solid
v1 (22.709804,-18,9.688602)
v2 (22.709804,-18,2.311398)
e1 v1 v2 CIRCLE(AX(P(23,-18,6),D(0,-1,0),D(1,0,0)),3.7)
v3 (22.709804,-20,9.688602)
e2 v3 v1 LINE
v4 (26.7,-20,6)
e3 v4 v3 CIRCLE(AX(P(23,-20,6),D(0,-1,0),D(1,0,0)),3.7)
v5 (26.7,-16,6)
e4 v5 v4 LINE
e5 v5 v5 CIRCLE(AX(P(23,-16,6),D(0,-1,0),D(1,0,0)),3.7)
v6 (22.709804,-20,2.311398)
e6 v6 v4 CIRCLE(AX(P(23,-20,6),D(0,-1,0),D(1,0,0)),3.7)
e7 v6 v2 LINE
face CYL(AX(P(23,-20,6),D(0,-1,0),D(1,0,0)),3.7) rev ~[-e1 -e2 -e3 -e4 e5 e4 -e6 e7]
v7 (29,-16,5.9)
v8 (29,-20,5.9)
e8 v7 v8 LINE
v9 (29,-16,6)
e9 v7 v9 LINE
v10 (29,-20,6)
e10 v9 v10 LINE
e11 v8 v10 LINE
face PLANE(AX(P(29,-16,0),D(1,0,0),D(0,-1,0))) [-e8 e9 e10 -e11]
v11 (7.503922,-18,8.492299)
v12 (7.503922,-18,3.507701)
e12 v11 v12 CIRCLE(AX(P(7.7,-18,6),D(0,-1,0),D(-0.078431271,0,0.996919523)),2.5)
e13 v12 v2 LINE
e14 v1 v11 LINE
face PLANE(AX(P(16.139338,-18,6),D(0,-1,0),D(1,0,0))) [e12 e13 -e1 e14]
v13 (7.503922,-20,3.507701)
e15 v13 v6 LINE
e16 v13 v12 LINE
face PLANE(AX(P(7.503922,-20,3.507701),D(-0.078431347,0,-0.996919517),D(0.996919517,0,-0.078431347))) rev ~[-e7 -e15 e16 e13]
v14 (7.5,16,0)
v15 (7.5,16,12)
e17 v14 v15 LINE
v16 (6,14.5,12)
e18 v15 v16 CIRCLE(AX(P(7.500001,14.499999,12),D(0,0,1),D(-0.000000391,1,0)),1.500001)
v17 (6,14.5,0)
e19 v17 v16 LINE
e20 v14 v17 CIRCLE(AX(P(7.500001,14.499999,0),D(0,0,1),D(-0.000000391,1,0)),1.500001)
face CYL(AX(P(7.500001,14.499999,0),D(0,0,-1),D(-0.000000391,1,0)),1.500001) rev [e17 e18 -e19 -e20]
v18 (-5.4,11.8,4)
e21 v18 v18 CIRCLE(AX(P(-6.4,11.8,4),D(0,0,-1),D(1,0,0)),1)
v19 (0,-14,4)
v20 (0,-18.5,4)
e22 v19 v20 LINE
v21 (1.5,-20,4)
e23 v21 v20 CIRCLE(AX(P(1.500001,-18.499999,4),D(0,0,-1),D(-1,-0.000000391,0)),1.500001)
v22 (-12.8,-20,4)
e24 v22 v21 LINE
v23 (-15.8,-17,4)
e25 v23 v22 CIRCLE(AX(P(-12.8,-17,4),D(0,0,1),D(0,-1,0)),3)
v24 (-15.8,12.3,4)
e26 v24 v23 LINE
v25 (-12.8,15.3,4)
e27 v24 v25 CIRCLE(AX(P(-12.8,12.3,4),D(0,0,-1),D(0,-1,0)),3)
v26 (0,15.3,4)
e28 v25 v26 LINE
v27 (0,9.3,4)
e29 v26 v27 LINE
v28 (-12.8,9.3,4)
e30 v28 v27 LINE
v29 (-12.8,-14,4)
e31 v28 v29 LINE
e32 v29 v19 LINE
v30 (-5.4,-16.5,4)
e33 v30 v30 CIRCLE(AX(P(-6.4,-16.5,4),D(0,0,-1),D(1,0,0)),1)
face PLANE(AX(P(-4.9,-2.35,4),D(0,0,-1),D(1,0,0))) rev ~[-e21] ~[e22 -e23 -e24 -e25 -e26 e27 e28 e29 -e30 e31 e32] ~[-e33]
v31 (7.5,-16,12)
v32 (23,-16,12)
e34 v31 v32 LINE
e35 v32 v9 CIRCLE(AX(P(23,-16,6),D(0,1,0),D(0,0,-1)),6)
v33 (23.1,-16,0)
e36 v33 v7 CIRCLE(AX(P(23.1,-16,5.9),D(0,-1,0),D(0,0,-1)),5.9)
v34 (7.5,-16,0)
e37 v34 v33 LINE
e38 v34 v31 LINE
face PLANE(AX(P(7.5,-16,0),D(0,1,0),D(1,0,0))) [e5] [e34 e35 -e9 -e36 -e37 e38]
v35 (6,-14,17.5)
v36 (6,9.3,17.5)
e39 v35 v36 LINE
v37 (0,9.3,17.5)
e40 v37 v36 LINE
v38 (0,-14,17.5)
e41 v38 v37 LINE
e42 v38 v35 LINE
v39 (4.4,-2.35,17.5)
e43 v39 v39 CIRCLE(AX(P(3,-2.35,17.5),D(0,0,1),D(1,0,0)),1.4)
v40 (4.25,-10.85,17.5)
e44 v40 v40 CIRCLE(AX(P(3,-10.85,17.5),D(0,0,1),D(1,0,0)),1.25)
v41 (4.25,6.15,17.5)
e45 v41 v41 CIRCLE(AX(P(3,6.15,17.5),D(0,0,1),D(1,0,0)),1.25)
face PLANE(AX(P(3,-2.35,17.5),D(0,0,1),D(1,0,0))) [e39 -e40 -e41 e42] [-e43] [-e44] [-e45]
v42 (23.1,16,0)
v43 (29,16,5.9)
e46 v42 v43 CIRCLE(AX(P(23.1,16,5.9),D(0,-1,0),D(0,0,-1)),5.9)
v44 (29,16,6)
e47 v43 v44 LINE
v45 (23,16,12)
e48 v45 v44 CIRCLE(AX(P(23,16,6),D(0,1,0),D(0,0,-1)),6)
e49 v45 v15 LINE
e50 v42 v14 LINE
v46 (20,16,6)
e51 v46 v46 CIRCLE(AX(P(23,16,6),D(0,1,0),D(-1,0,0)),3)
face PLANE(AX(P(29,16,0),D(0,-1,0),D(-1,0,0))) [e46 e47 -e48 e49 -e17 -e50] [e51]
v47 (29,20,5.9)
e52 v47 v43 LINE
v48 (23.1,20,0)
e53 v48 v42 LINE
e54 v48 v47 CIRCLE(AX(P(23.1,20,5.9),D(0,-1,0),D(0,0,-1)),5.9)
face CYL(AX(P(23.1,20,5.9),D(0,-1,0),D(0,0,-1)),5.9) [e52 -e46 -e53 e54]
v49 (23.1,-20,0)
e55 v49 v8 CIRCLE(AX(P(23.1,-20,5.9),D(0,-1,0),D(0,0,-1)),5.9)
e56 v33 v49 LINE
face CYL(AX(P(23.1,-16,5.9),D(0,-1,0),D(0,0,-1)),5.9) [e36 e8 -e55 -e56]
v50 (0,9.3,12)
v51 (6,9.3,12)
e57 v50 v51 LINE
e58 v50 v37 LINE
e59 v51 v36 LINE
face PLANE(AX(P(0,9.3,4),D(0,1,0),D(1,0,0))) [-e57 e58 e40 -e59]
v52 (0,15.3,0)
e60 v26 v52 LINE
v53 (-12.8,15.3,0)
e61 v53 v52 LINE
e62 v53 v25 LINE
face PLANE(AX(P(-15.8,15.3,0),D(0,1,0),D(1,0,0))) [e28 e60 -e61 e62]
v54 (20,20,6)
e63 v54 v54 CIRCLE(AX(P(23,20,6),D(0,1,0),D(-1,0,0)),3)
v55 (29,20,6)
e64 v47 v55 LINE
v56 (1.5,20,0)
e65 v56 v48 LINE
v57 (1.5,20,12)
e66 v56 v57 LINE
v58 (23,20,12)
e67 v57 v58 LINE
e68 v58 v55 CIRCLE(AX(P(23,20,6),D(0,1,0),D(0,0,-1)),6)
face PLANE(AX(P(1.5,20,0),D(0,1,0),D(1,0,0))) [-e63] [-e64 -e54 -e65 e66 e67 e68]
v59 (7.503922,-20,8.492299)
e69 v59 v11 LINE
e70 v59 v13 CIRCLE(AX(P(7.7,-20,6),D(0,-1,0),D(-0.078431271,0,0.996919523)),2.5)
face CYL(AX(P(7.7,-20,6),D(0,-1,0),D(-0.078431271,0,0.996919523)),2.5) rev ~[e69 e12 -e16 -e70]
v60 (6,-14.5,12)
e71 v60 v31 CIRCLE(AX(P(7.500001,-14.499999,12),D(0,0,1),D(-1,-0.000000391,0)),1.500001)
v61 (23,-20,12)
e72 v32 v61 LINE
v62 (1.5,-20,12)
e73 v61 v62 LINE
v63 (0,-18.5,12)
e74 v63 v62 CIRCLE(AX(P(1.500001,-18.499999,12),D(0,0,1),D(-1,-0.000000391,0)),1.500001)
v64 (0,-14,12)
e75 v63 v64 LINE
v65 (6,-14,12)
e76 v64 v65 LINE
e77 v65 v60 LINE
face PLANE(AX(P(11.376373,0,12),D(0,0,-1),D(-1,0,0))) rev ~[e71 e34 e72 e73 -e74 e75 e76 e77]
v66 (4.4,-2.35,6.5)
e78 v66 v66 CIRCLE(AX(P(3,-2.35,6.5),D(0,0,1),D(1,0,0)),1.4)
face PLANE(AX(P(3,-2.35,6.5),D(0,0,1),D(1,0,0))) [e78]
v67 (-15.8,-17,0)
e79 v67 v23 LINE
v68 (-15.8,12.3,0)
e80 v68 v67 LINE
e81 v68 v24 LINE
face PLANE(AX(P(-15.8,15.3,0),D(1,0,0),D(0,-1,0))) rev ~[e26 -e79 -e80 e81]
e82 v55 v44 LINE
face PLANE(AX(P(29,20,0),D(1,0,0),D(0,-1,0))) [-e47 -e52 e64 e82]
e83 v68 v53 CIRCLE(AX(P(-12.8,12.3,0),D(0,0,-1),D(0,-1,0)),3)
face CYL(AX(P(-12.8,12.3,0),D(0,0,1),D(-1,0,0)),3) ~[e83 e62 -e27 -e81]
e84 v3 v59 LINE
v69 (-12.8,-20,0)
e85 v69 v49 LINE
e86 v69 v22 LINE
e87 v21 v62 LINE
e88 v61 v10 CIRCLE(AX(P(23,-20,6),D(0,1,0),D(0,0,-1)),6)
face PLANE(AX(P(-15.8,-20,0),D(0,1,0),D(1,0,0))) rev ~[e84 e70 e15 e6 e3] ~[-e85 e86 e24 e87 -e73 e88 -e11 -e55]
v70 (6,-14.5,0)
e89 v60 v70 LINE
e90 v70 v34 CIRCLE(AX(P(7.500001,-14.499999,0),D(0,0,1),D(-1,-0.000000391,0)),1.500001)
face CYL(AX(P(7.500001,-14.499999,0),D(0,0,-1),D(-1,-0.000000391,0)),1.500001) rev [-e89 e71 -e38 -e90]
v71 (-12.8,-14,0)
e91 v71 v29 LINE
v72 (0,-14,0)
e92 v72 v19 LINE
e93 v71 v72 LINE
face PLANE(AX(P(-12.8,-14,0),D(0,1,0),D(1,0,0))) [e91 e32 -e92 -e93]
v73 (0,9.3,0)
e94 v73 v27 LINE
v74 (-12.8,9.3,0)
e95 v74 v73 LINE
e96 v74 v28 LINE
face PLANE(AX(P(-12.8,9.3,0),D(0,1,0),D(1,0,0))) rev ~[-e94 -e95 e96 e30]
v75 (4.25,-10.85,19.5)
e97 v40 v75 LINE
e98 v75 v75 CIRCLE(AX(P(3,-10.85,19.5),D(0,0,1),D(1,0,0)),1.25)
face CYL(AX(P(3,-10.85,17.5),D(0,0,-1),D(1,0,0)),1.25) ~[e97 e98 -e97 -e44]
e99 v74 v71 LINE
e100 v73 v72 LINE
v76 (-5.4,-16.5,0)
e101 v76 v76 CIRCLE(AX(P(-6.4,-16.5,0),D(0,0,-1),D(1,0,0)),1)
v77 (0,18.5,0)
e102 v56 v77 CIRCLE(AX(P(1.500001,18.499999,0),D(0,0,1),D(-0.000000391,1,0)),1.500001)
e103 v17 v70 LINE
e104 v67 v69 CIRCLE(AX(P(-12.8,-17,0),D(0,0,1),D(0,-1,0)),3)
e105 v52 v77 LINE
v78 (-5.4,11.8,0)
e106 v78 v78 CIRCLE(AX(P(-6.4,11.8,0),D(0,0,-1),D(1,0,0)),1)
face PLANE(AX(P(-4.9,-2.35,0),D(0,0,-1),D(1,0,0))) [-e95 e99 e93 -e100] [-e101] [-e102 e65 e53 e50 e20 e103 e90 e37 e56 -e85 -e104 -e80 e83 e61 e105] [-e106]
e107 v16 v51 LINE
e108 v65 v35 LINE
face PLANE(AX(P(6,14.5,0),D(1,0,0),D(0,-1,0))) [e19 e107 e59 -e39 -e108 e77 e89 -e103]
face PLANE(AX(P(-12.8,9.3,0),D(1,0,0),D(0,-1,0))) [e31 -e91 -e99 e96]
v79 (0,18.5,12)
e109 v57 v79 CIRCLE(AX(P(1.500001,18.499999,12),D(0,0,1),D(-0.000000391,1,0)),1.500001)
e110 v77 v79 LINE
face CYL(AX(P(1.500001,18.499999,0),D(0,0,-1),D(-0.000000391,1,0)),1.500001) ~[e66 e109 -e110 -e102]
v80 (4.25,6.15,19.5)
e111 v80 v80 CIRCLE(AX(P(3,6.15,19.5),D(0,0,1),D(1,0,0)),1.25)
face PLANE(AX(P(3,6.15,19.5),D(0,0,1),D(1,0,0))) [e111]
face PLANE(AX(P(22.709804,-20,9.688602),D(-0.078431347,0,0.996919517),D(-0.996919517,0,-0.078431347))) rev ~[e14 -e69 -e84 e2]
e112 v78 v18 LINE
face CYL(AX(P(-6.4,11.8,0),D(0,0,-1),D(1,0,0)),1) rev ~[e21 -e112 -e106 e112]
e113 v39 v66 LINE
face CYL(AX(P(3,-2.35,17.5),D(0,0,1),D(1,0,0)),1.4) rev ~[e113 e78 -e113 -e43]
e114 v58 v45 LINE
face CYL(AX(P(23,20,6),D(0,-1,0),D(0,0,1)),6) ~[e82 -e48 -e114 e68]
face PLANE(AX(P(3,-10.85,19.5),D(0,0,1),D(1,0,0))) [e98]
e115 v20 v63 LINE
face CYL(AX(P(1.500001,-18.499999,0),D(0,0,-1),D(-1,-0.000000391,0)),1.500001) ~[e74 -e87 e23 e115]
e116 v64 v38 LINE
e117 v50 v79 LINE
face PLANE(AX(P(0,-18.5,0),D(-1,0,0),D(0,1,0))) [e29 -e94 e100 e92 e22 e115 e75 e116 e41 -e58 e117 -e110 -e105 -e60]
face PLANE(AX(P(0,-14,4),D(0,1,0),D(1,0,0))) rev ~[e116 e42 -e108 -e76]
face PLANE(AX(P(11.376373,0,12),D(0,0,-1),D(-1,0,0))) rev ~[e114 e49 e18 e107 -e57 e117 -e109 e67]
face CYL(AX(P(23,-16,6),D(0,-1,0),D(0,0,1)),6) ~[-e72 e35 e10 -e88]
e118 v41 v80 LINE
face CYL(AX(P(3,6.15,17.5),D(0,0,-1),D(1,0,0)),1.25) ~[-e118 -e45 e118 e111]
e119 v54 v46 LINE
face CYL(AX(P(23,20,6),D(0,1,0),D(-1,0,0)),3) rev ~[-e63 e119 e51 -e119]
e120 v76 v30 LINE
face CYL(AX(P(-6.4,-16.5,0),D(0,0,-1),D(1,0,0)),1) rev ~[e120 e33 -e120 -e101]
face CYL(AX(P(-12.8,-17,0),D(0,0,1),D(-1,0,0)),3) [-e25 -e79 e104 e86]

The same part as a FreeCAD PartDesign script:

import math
import FreeCAD as App
import Part
import Sketcher
from FreeCAD import Vector
Q = App.Units.Quantity


def edges_at(feature, points):
    """Names of the edges that pass closest to the given points."""
    edges = feature.Shape.Edges
    near = lambda p: min(range(len(edges)), key=lambda i: edges[i].distToShape(Part.Vertex(*p))[0])
    return sorted({f"Edge{near(p) + 1}" for p in points})

doc = App.newDocument("Part")
body = doc.addObject("PartDesign::Body", "Body")

# Sketch on XY plane
sketch1 = body.newObject("Sketcher::SketchObject", "Sketch")
sketch1.AttachmentSupport = (doc.getObject("XY_Plane"), [""])
sketch1.MapMode = "FlatFace"
sketch1.addGeometry([
    Part.LineSegment(Vector(29, 20, 0), Vector(1.5, 20, 0)),  # 0
    Part.ArcOfCircle(Part.Circle(Vector(1.5, 18.5, 0), Vector(0, 0, 1), 1.5), math.radians(90), math.radians(180)),  # 1
    Part.LineSegment(Vector(0, 18.5, 0), Vector(0, -18.5, 0)),  # 2
    Part.ArcOfCircle(Part.Circle(Vector(1.5, -18.5, 0), Vector(0, 0, 1), 1.5), math.radians(-180), math.radians(-90)),  # 3
    Part.LineSegment(Vector(1.5, -20, 0), Vector(29, -20, 0)),  # 4
    Part.LineSegment(Vector(29, -20, 0), Vector(29, -16, 0)),  # 5
    Part.LineSegment(Vector(29, -16, 0), Vector(7.5, -16, 0)),  # 6
    Part.ArcOfCircle(Part.Circle(Vector(7.5, -14.5, 0), Vector(0, 0, 1), 1.5), math.radians(-180), math.radians(-90)),  # 7
    Part.LineSegment(Vector(6, -14.5, 0), Vector(6, 14.5, 0)),  # 8
    Part.ArcOfCircle(Part.Circle(Vector(7.5, 14.5, 0), Vector(0, 0, 1), 1.5), math.radians(90), math.radians(180)),  # 9
    Part.LineSegment(Vector(7.5, 16, 0), Vector(29, 16, 0)),  # 10
    Part.LineSegment(Vector(29, 16, 0), Vector(29, 20, 0)),  # 11
], False)
sketch1.addConstraint([
    Sketcher.Constraint("Tangent", 0, 2, 1, 1),
    Sketcher.Constraint("Tangent", 1, 2, 2, 1),
    Sketcher.Constraint("Tangent", 2, 2, 3, 1),
    Sketcher.Constraint("Tangent", 3, 2, 4, 1),
    Sketcher.Constraint("Coincident", 4, 2, 5, 1),
    Sketcher.Constraint("Coincident", 5, 2, 6, 1),
    Sketcher.Constraint("Tangent", 6, 2, 7, 2),
    Sketcher.Constraint("Tangent", 7, 1, 8, 1),
    Sketcher.Constraint("Tangent", 8, 2, 9, 2),
    Sketcher.Constraint("Tangent", 9, 1, 10, 1),
    Sketcher.Constraint("Coincident", 10, 2, 11, 1),
    Sketcher.Constraint("Coincident", 11, 2, 0, 1),
    Sketcher.Constraint("Horizontal", 0),
    Sketcher.Constraint("Vertical", 2),
    Sketcher.Constraint("Horizontal", 4),
    Sketcher.Constraint("Vertical", 5),
    Sketcher.Constraint("Horizontal", 6),
    Sketcher.Constraint("Vertical", 8),
    Sketcher.Constraint("Horizontal", 10),
    Sketcher.Constraint("Vertical", 11),
    Sketcher.Constraint("Equal", 1, 3),
    Sketcher.Constraint("Equal", 3, 7),
    Sketcher.Constraint("Equal", 7, 9),
    Sketcher.Constraint("Symmetric", 1, 2, 2, 2, -1, 1),
    Sketcher.Constraint("Symmetric", 5, 2, 10, 2, -1),
    Sketcher.Constraint("Radius", 1, Q("1.500001 mm")),
    Sketcher.Constraint("DistanceY", 2, 2, 2, 1, Q("37 mm")),
    Sketcher.Constraint("DistanceY", 5, 1, 5, 2, Q("4 mm")),
    Sketcher.Constraint("DistanceX", 0, 2, 0, 1, Q("27.5 mm")),
    Sketcher.Constraint("DistanceX", 6, 2, 6, 1, Q("21.5 mm")),
])
pad1 = body.newObject("PartDesign::Pad", "Pad")
pad1.Profile = sketch1
pad1.Length = 12

# Sketch on XZ plane
sketch2 = body.newObject("Sketcher::SketchObject", "Sketch001")
sketch2.AttachmentSupport = (doc.getObject("XZ_Plane"), [""])
sketch2.MapMode = "FlatFace"
sketch2.AttachmentOffset = App.Placement(Vector(0, 0, 20), App.Rotation())
sketch2.addGeometry(Part.Circle(Vector(23, 6, 0), Vector(0, 0, 1), 3.7), False)
sketch2.addConstraint([
    Sketcher.Constraint("Diameter", 0, Q("7.4 mm")),
    Sketcher.Constraint("DistanceX", -1, 1, 0, 3, Q("23 mm")),
    Sketcher.Constraint("DistanceY", -1, 1, 0, 3, Q("6 mm")),
])
pocket1 = body.newObject("PartDesign::Pocket", "Pocket")
pocket1.Profile = sketch2
pocket1.Length = 5

# Sketch on XZ plane
sketch3 = body.newObject("Sketcher::SketchObject", "Sketch002")
sketch3.AttachmentSupport = (doc.getObject("XZ_Plane"), [""])
sketch3.MapMode = "FlatFace"
sketch3.AttachmentOffset = App.Placement(Vector(0, 0, -20), App.Rotation())
sketch3.addGeometry(Part.Circle(Vector(23, 6, 0), Vector(0, 0, 1), 3), False)
sketch3.addConstraint([
    Sketcher.Constraint("Diameter", 0, Q("6 mm")),
    Sketcher.Constraint("DistanceX", -1, 1, 0, 3, Q("23 mm")),
    Sketcher.Constraint("DistanceY", -1, 1, 0, 3, Q("6 mm")),
])
pocket2 = body.newObject("PartDesign::Pocket", "Pocket001")
pocket2.Profile = sketch3
pocket2.Length = 5
pocket2.Reversed = True

# Sketch on XZ plane
sketch4 = body.newObject("Sketcher::SketchObject", "Sketch003")
sketch4.AttachmentSupport = (doc.getObject("XZ_Plane"), [""])
sketch4.MapMode = "FlatFace"
sketch4.AttachmentOffset = App.Placement(Vector(0, 0, 20), App.Rotation())
sketch4.addGeometry([
    Part.ArcOfCircle(Part.Circle(Vector(7.7, 6, 0), Vector(0, 0, 1), 2.5), math.radians(94), math.radians(266)),
    Part.LineSegment(Vector(7.5, 3.5, 0), Vector(22.7, 2.3, 0)),
    Part.ArcOfCircle(Part.Circle(Vector(23, 6, 0), Vector(0, 0, 1), 3.7), math.radians(-94), math.radians(94)),
    Part.LineSegment(Vector(22.7, 9.7, 0), Vector(7.5, 8.5, 0)),
], False)
sketch4.addConstraint([
    Sketcher.Constraint("Tangent", 0, 2, 1, 1),
    Sketcher.Constraint("Tangent", 1, 2, 2, 1),
    Sketcher.Constraint("Tangent", 2, 2, 3, 1),
    Sketcher.Constraint("Tangent", 3, 2, 0, 1),
    Sketcher.Constraint("Horizontal", 0, 3, 2, 3),
    Sketcher.Constraint("Radius", 0, Q("2.5 mm")),
    Sketcher.Constraint("Radius", 2, Q("3.7 mm")),
    Sketcher.Constraint("DistanceY", -1, 1, 0, 3, Q("6 mm")),
    Sketcher.Constraint("DistanceX", -1, 1, 2, 3, Q("23 mm")),
    Sketcher.Constraint("DistanceX", -1, 1, 0, 3, Q("7.7 mm")),
])
pocket3 = body.newObject("PartDesign::Pocket", "Pocket002")
pocket3.Profile = sketch4
pocket3.Length = 2

# Sketch on XY plane
sketch5 = body.newObject("Sketcher::SketchObject", "Sketch004")
sketch5.AttachmentSupport = (doc.getObject("XY_Plane"), [""])
sketch5.MapMode = "FlatFace"
sketch5.addGeometry([
    Part.LineSegment(Vector(-15.8, -20, 0), Vector(-15.8, 15.3, 0)),  # 0
    Part.LineSegment(Vector(-15.8, 15.3, 0), Vector(6, 15.3, 0)),  # 1
    Part.LineSegment(Vector(6, 15.3, 0), Vector(6, -20, 0)),  # 2
    Part.LineSegment(Vector(6, -20, 0), Vector(-15.8, -20, 0)),  # 3
    Part.Circle(Vector(-6.4, 11.8, 0), Vector(0, 0, 1), 1),  # 4
    Part.LineSegment(Vector(0, 9.3, 0), Vector(-12.8, 9.3, 0)),  # 5
    Part.LineSegment(Vector(-12.8, 9.3, 0), Vector(-12.8, -14, 0)),  # 6
    Part.LineSegment(Vector(-12.8, -14, 0), Vector(0, -14, 0)),  # 7
    Part.LineSegment(Vector(0, -14, 0), Vector(0, 9.3, 0)),  # 8
    Part.Circle(Vector(-6.4, -16.5, 0), Vector(0, 0, 1), 1),  # 9
], False)
sketch5.addConstraint([
    Sketcher.Constraint("Coincident", 0, 2, 1, 1),
    Sketcher.Constraint("Coincident", 1, 2, 2, 1),
    Sketcher.Constraint("Coincident", 2, 2, 3, 1),
    Sketcher.Constraint("Coincident", 3, 2, 0, 1),
    Sketcher.Constraint("Coincident", 5, 2, 6, 1),
    Sketcher.Constraint("Coincident", 6, 2, 7, 1),
    Sketcher.Constraint("Coincident", 7, 2, 8, 1),
    Sketcher.Constraint("Coincident", 8, 2, 5, 1),
    Sketcher.Constraint("Vertical", 0),
    Sketcher.Constraint("Horizontal", 1),
    Sketcher.Constraint("Vertical", 2),
    Sketcher.Constraint("Horizontal", 3),
    Sketcher.Constraint("Horizontal", 5),
    Sketcher.Constraint("Vertical", 6),
    Sketcher.Constraint("Horizontal", 7),
    Sketcher.Constraint("Vertical", 8),
    Sketcher.Constraint("Equal", 4, 9),
    Sketcher.Constraint("PointOnObject", 7, 2, -2),
    Sketcher.Constraint("Vertical", 4, 3, 9, 3),
    Sketcher.Constraint("Diameter", 4, Q("2 mm")),
    Sketcher.Constraint("DistanceX", 1, 1, 1, 2, Q("21.8 mm")),
    Sketcher.Constraint("DistanceX", 5, 2, 5, 1, Q("12.8 mm")),
    Sketcher.Constraint("DistanceY", 0, 1, 0, 2, Q("35.3 mm")),
    Sketcher.Constraint("DistanceY", 6, 2, 6, 1, Q("23.3 mm")),
    Sketcher.Constraint("DistanceX", -1, 1, 1, 2, Q("6 mm")),
    Sketcher.Constraint("DistanceY", 2, 2, -1, 1, Q("20 mm")),
    Sketcher.Constraint("DistanceY", 6, 2, -1, 1, Q("14 mm")),
    Sketcher.Constraint("DistanceX", 4, 3, -1, 1, Q("6.4 mm")),
    Sketcher.Constraint("DistanceY", -1, 1, 4, 3, Q("11.8 mm")),
    Sketcher.Constraint("DistanceY", 9, 3, -1, 1, Q("16.5 mm")),
])
pad2 = body.newObject("PartDesign::Pad", "Pad001")
pad2.Profile = sketch5
pad2.Length = 4
doc.recompute()

fillet = body.newObject("PartDesign::Fillet", "Fillet")
fillet.Base = (pad2, edges_at(pad2, [(-15.8, -20, 2)]))
fillet.Radius = 3
doc.recompute()

fillet2 = body.newObject("PartDesign::Fillet", "Fillet001")
fillet2.Base = (fillet, edges_at(fillet, [(-15.8, 15.3, 2)]))
fillet2.Radius = 3

# Sketch on XY plane
sketch6 = body.newObject("Sketcher::SketchObject", "Sketch005")
sketch6.AttachmentSupport = (doc.getObject("XY_Plane"), [""])
sketch6.MapMode = "FlatFace"
sketch6.AttachmentOffset = App.Placement(Vector(0, 0, 4), App.Rotation())
sketch6.addGeometry([
    Part.LineSegment(Vector(0, 9, 0), Vector(0, -14, 0)),
    Part.LineSegment(Vector(0, -14, 0), Vector(6, -14, 0)),
    Part.LineSegment(Vector(6, -14, 0), Vector(6, 9, 0)),
    Part.LineSegment(Vector(6, 9, 0), Vector(0, 9, 0)),
], False)
sketch6.addConstraint([
    Sketcher.Constraint("Coincident", 0, 2, 1, 1),
    Sketcher.Constraint("Coincident", 1, 2, 2, 1),
    Sketcher.Constraint("Coincident", 2, 2, 3, 1),
    Sketcher.Constraint("Coincident", 3, 2, 0, 1),
    Sketcher.Constraint("Vertical", 0),
    Sketcher.Constraint("Horizontal", 1),
    Sketcher.Constraint("Vertical", 2),
    Sketcher.Constraint("Horizontal", 3),
    Sketcher.Constraint("PointOnObject", 0, 2, -2),
    Sketcher.Constraint("DistanceX", 1, 1, 1, 2, Q("6 mm")),
    Sketcher.Constraint("DistanceY", 0, 2, 0, 1, Q("23.3 mm")),
    Sketcher.Constraint("DistanceY", 0, 2, -1, 1, Q("14 mm")),
])
pad3 = body.newObject("PartDesign::Pad", "Pad002")
pad3.Profile = sketch6
pad3.Length = 13.5

# Sketch on XY plane
sketch7 = body.newObject("Sketcher::SketchObject", "Sketch006")
sketch7.AttachmentSupport = (doc.getObject("XY_Plane"), [""])
sketch7.MapMode = "FlatFace"
sketch7.AttachmentOffset = App.Placement(Vector(0, 0, 17.5), App.Rotation())
sketch7.addGeometry([
    Part.Circle(Vector(3, 6.2, 0), Vector(0, 0, 1), 1.2),
    Part.Circle(Vector(3, -10.8, 0), Vector(0, 0, 1), 1.2),
], False)
sketch7.addConstraint([
    Sketcher.Constraint("Equal", 0, 1),
    Sketcher.Constraint("Vertical", 0, 3, 1, 3),
    Sketcher.Constraint("Diameter", 0, Q("2.5 mm")),
    Sketcher.Constraint("DistanceX", -1, 1, 0, 3, Q("3 mm")),
    Sketcher.Constraint("DistanceY", 1, 3, 0, 3, Q("17 mm")),
    Sketcher.Constraint("DistanceY", -1, 1, 0, 3, Q("6.15 mm")),
])
pad4 = body.newObject("PartDesign::Pad", "Pad003")
pad4.Profile = sketch7
pad4.Length = 2

# Sketch on XY plane
sketch8 = body.newObject("Sketcher::SketchObject", "Sketch007")
sketch8.AttachmentSupport = (doc.getObject("XY_Plane"), [""])
sketch8.MapMode = "FlatFace"
sketch8.AttachmentOffset = App.Placement(Vector(0, 0, 17.5), App.Rotation())
sketch8.addGeometry(Part.Circle(Vector(3, -2.4, 0), Vector(0, 0, 1), 1.4), False)
sketch8.addConstraint([
    Sketcher.Constraint("Diameter", 0, Q("2.8 mm")),
    Sketcher.Constraint("DistanceX", -1, 1, 0, 3, Q("3 mm")),
    Sketcher.Constraint("DistanceY", 0, 3, -1, 1, Q("2.35 mm")),
])
pocket4 = body.newObject("PartDesign::Pocket", "Pocket003")
pocket4.Profile = sketch8
pocket4.Length = 11
doc.recompute()

fillet3 = body.newObject("PartDesign::Fillet", "Fillet002")
fillet3.Base = (pocket4, edges_at(pocket4, [(29, -18, 12)]))
fillet3.Radius = 6
doc.recompute()

fillet4 = body.newObject("PartDesign::Fillet", "Fillet003")
fillet4.Base = (fillet3, edges_at(fillet3, [(29, 18, 12)]))
fillet4.Radius = 6
doc.recompute()

fillet5 = body.newObject("PartDesign::Fillet", "Fillet004")
fillet5.Base = (fillet4, edges_at(fillet4, [(29, -18, 0)]))
fillet5.Radius = 5.9
doc.recompute()

fillet6 = body.newObject("PartDesign::Fillet", "Fillet005")
fillet6.Base = (fillet5, edges_at(fillet5, [(29, 18, 0)]))
fillet6.Radius = 5.9

doc.recompute()
